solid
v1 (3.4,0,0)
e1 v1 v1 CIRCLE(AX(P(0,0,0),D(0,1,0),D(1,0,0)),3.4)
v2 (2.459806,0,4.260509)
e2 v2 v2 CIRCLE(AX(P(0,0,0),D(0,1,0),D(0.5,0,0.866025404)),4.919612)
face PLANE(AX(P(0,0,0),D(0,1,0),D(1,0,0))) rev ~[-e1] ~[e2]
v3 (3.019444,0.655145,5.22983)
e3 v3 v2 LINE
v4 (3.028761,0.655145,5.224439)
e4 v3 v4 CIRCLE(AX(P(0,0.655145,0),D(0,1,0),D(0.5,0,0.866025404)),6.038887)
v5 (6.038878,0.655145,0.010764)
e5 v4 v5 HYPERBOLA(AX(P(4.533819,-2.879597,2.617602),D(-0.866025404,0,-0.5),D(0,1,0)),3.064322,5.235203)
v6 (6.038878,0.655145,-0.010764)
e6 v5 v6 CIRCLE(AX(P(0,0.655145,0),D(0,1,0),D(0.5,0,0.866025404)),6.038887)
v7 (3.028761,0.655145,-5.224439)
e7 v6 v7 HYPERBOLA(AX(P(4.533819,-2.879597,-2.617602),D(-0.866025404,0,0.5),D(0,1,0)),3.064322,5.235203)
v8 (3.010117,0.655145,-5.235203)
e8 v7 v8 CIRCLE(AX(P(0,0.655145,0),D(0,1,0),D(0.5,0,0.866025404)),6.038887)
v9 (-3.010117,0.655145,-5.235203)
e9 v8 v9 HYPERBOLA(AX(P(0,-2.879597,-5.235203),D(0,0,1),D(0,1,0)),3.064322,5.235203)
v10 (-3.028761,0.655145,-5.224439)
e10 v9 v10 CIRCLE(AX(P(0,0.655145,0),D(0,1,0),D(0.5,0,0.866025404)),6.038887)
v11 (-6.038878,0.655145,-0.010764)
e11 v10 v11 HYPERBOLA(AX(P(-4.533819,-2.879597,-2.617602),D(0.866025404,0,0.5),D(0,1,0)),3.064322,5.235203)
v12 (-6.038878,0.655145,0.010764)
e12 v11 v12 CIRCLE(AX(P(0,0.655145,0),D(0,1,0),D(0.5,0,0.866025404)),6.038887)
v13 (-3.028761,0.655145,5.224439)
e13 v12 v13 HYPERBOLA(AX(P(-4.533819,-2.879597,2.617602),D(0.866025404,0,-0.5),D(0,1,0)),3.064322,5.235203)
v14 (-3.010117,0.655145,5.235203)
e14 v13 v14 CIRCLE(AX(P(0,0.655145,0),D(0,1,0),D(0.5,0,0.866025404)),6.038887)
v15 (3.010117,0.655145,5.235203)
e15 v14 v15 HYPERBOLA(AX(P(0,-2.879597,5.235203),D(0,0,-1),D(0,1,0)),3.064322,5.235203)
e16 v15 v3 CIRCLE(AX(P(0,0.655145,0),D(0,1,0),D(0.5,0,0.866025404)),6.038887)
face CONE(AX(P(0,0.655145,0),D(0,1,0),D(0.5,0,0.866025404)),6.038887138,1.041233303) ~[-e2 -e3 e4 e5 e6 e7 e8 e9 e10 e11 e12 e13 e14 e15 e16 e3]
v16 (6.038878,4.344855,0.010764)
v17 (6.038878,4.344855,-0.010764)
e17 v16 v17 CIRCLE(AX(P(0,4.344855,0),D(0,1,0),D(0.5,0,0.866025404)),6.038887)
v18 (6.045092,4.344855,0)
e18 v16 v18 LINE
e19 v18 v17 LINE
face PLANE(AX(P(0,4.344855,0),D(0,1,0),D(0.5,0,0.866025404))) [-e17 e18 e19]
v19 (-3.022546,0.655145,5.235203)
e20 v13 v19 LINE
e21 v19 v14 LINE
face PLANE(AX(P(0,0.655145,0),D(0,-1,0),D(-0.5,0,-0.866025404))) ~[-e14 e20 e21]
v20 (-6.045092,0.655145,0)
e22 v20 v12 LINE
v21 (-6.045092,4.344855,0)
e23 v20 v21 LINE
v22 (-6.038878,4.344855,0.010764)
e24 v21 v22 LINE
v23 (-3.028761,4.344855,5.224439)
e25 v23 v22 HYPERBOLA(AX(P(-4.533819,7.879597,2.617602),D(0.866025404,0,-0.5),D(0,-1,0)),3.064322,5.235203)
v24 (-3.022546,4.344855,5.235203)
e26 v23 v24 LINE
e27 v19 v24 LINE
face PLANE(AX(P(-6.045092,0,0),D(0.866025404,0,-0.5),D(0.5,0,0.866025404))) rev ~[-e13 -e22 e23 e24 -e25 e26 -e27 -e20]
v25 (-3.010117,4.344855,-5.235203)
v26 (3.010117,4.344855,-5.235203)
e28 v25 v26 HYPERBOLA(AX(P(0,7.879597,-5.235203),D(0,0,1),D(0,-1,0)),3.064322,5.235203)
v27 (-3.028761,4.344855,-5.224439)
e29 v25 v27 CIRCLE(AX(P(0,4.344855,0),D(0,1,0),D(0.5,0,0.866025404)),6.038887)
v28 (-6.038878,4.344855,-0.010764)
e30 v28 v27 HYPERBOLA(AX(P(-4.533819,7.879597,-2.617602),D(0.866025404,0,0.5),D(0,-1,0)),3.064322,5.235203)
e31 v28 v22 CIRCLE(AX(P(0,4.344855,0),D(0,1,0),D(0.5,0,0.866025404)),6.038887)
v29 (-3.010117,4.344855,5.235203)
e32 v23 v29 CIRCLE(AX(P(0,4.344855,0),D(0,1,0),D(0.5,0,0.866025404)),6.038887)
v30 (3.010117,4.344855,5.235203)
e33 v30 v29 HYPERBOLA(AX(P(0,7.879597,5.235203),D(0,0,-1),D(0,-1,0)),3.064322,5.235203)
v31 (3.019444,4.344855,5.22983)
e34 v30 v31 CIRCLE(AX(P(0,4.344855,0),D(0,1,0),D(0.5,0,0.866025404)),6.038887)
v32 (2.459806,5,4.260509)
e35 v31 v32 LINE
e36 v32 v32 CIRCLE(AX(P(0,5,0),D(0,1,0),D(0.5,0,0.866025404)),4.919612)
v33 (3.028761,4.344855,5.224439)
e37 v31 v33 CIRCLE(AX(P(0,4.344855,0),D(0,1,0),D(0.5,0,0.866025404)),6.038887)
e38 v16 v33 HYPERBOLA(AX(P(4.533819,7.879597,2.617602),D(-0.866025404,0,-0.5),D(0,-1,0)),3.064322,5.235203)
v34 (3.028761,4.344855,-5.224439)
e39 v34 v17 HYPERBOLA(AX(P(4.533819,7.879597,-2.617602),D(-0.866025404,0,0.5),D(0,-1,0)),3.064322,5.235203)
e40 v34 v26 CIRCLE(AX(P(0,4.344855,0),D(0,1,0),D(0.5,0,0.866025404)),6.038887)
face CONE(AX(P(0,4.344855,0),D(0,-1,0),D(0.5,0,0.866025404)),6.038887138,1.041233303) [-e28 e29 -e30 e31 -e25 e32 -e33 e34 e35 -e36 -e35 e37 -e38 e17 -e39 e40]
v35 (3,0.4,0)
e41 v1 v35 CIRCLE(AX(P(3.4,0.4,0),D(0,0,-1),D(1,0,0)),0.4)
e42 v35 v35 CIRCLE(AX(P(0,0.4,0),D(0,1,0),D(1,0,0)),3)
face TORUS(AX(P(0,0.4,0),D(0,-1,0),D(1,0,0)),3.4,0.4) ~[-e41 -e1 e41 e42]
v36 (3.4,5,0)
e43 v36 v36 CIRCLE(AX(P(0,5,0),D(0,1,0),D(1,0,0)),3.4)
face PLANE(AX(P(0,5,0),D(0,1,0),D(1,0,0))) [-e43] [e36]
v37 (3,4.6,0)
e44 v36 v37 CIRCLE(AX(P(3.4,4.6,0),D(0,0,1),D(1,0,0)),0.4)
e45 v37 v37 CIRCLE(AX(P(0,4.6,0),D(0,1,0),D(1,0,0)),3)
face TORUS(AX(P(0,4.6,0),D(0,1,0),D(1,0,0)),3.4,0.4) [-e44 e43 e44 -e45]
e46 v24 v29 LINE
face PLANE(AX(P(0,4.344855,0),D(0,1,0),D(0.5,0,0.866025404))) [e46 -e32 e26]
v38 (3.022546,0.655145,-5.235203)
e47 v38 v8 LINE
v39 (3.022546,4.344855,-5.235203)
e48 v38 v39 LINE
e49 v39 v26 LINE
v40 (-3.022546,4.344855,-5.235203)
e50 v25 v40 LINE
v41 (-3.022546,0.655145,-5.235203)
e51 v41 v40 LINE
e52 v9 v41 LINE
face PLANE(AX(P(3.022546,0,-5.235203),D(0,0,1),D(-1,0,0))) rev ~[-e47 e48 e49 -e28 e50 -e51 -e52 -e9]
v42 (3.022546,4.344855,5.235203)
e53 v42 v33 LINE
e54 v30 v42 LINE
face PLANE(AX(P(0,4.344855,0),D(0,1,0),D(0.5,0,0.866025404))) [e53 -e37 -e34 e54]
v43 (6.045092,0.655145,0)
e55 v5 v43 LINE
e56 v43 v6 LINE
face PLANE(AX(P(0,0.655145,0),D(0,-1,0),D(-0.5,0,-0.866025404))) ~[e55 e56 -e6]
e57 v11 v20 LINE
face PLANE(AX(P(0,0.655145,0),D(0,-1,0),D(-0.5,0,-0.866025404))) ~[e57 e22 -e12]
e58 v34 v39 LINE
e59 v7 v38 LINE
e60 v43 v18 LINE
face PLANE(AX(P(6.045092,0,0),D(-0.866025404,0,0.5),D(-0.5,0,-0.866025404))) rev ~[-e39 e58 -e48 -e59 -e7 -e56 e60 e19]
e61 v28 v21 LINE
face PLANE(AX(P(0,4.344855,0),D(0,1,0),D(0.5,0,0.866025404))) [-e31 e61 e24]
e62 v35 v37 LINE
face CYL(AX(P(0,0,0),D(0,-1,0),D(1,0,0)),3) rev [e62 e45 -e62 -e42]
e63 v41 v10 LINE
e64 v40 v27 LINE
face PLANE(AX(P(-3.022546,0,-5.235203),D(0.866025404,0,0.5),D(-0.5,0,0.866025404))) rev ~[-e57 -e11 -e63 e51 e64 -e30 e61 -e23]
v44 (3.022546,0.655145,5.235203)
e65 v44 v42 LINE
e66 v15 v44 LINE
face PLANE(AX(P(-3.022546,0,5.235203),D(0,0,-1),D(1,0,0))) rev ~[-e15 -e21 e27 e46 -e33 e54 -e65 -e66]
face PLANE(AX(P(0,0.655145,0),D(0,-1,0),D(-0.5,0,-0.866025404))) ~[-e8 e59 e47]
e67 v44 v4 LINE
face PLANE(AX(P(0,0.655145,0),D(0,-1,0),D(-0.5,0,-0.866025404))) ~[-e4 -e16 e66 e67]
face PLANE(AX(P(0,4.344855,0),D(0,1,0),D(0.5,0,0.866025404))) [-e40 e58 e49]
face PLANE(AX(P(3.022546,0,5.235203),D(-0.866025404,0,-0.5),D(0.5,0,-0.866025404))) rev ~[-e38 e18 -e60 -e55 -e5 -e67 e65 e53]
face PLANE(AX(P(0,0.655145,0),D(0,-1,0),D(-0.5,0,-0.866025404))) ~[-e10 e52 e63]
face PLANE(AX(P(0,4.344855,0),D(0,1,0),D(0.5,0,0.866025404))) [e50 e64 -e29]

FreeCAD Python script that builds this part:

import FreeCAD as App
import Part
import Sketcher

V = App.Vector
Q = App.Units.Quantity


def edges_at(feature, points):
    """Names of the edges that pass closest to the given points."""
    edges = feature.Shape.Edges
    near = lambda p: min(range(len(edges)), key=lambda i: edges[i].distToShape(Part.Vertex(*p))[0])
    return sorted({f"Edge{near(p) + 1}" for p in points})


def add_polygon(sketch, points):
    """Adds a closed chain of lines whose ends are joined by coincident constraints."""
    first, n = sketch.GeometryCount, len(points)
    for a, b in zip(points, points[1:] + points[:1]):
        sketch.addGeometry(Part.LineSegment(App.Vector(*a, 0), App.Vector(*b, 0)), False)
    for i in range(n):
        sketch.addConstraint(Sketcher.Constraint("Coincident", first + i, 2, first + (i + 1) % n, 1))

doc = App.newDocument("Part")
body = doc.addObject("PartDesign::Body", "Body")

# Sketch on XZ plane
sketch1 = body.newObject("Sketcher::SketchObject", "Sketch")
sketch1.AttachmentSupport = (doc.getObject("XZ_Plane"), [""])
sketch1.MapMode = "FlatFace"
add_polygon(sketch1, [(6.045092, 0), (3.022546, -5.235203), (-3.022546, -5.235203), (-6.045092, 0), (-3.022546, 5.235203), (3.022546, 5.235203)])  # lines 0-5
sketch1.addGeometry(Part.Circle(V(0, 0, 0), V(0, 0, 1), 3), False)  # 6
sketch1.addConstraint([
    Sketcher.Constraint("Horizontal", 1),
    Sketcher.Constraint("Horizontal", 4),
    Sketcher.Constraint("Coincident", 6, 3, -1, 1),
    Sketcher.Constraint("Symmetric", 0, 2, 3, 2, -1, 1),
    Sketcher.Constraint("Symmetric", 2, 2, 5, 2, -1, 1),
    Sketcher.Constraint("PointOnObject", 2, 2, -1),
    Sketcher.Constraint("Parallel", 2, 5),
    Sketcher.Constraint("Vertical", 1, 2, 3, 2),
    Sketcher.Constraint("Diameter", 6, 6.0),
    Sketcher.Constraint("Angle", 0, Q("-120 deg")),
    Sketcher.Constraint("DistanceX", 1, 2, 1, 1, 6.045092),
    Sketcher.Constraint("DistanceX", 2, 2, 0, 2, 9.067638),
])
pad1 = body.newObject("PartDesign::Pad", "Pad")
pad1.Profile = sketch1
pad1.Length = 5
pad1.Reversed = True

# Sketch on an angled plane
sketch2 = body.newObject("Sketcher::SketchObject", "Sketch001")
sketch2.Placement = App.Placement(V(0, 0, 0), App.Rotation(V(-0.5, 0, -0.866025404), V(0, 1, 0), V(0.866025404, 0, -0.5), "ZXY"))
add_polygon(sketch2, [(-6.389496, 4.344855), (-6.038887, 4.344855), (-4.919612, 5), (-6.274952, 5.099246)])  # lines 0-3
sketch2.addConstraint([
    Sketcher.Constraint("Horizontal", 0),
    Sketcher.Constraint("DistanceY", -1, 1, 1, 2, 5.0),
    Sketcher.Constraint("DistanceX", 0, 1, 0, 2, 0.350609),
    Sketcher.Constraint("Distance", 2, 1.358969),
    Sketcher.Constraint("DistanceY", 0, 2, 2, 2, 0.754391),
    Sketcher.Constraint("DistanceX", 2, 2, 1, 2, 1.35534),
    Sketcher.Constraint("Distance", 1, 1.296916),
    Sketcher.Constraint("DistanceX", 0, 2, -1, 1, 6.038887),
])
groove = body.newObject("PartDesign::Groove", "Groove")
groove.Profile = sketch2
groove.ReferenceAxis = (sketch2, ["V_Axis"])
groove.Angle = 360
doc.recompute()

datumplane = body.newObject("PartDesign::Plane", "DatumPlane")
datumplane.AttachmentSupport = (doc.getObject("XZ_Plane"), [""])
datumplane.MapMode = "FlatFace"
datumplane.AttachmentOffset = App.Placement(V(0, 0, -2.5), App.Rotation())
mirrored = body.newObject("PartDesign::Mirrored", "Mirrored")
mirrored.Originals = [groove]
mirrored.MirrorPlane = (datumplane, [""])
body.Tip = mirrored
doc.recompute()

fillet = body.newObject("PartDesign::Fillet", "Fillet")
fillet.Base = (mirrored, edges_at(mirrored, [(-3, 0, 0), (-3, 5, 0)]))
fillet.Radius = 0.4

doc.recompute()
